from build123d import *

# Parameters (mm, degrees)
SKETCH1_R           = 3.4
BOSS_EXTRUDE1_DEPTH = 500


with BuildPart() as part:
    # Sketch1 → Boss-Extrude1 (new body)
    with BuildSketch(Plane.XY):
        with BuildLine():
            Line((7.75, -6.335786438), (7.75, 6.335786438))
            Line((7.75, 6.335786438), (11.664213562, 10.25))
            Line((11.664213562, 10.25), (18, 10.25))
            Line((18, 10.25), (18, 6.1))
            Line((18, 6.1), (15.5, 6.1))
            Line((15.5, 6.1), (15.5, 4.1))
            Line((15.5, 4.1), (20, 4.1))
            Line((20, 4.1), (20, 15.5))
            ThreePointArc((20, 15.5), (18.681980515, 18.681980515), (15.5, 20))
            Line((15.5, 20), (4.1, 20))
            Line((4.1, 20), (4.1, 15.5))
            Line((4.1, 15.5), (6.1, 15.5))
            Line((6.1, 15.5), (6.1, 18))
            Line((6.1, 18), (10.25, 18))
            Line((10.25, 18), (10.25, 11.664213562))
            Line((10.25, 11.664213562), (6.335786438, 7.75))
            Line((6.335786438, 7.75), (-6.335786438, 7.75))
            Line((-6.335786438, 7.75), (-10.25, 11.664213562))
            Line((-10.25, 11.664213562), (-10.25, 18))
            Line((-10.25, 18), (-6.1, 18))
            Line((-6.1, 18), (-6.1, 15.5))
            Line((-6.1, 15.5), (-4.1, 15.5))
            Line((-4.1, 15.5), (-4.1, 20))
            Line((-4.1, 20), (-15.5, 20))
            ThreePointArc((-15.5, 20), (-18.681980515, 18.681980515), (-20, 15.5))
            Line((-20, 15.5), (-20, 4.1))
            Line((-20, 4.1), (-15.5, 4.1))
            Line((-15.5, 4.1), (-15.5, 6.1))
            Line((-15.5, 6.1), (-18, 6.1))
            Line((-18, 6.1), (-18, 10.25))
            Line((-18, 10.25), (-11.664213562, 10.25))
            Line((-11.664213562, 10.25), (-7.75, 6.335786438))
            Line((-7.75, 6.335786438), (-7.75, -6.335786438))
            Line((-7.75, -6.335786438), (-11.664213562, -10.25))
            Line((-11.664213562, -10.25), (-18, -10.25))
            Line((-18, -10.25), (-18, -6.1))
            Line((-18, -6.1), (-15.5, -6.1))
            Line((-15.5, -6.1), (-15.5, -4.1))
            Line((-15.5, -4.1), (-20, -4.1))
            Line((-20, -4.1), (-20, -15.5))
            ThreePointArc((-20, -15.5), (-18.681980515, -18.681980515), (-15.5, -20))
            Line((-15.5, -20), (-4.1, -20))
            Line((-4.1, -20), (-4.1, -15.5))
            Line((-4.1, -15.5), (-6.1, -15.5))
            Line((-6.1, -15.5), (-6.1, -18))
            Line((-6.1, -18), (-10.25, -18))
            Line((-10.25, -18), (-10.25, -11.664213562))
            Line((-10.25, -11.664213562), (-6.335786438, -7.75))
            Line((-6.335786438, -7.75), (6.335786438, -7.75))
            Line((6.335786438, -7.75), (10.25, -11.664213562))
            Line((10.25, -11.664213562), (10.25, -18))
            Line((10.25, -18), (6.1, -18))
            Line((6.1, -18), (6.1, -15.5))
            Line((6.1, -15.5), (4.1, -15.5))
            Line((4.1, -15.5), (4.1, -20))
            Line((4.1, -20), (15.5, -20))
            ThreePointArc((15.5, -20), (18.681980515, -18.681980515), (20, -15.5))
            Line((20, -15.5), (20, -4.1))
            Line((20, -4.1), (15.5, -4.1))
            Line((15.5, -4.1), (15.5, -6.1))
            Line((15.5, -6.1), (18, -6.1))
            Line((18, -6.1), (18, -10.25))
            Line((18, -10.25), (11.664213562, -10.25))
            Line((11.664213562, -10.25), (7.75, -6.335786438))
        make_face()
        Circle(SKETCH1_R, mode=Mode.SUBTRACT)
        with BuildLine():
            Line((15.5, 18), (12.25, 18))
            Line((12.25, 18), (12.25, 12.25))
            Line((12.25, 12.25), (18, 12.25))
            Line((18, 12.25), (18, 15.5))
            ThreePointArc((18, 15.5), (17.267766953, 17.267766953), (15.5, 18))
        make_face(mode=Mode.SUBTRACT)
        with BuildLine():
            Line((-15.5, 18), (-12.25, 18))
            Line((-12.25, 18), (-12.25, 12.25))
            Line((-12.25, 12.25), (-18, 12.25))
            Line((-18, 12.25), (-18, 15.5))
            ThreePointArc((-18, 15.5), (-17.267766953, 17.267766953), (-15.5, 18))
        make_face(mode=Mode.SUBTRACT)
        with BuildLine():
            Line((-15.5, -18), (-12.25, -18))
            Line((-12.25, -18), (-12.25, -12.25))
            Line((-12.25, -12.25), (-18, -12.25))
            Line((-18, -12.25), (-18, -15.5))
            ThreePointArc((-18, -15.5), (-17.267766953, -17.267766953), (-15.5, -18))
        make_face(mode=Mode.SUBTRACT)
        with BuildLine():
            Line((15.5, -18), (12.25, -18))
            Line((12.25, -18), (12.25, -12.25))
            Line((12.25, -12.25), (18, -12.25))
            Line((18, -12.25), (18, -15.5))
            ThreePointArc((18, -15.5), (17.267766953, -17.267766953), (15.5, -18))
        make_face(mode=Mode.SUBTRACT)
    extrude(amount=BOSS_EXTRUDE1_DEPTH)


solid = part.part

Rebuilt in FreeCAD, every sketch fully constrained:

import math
import FreeCAD as App
import Part
import Sketcher

V = App.Vector
Q = App.Units.Quantity

doc = App.newDocument("Part")
body = doc.addObject("PartDesign::Body", "Body")

# Sketch on XY plane
sketch1 = body.newObject("Sketcher::SketchObject", "Sketch")
sketch1.AttachmentSupport = (doc.getObject("XY_Plane"), [""])
sketch1.MapMode = "FlatFace"
sketch1.addGeometry([
    Part.LineSegment(V(7.8, -6.3, 0), V(7.8, 6.3, 0)),  # 0
    Part.LineSegment(V(7.8, 6.3, 0), V(11.7, 10.2, 0)),  # 1
    Part.LineSegment(V(11.7, 10.2, 0), V(18, 10.2, 0)),  # 2
    Part.LineSegment(V(18, 10.2, 0), V(18, 6.1, 0)),  # 3
    Part.LineSegment(V(18, 6.1, 0), V(15.5, 6.1, 0)),  # 4
    Part.LineSegment(V(15.5, 6.1, 0), V(15.5, 4.1, 0)),  # 5
    Part.LineSegment(V(15.5, 4.1, 0), V(20, 4.1, 0)),  # 6
    Part.LineSegment(V(20, 4.1, 0), V(20, 15.5, 0)),  # 7
    Part.ArcOfCircle(Part.Circle(V(15.5, 15.5, 0), V(0, 0, 1), 4.5), math.radians(0), math.radians(90)),  # 8
    Part.LineSegment(V(15.5, 20, 0), V(4.1, 20, 0)),  # 9
    Part.LineSegment(V(4.1, 20, 0), V(4.1, 15.5, 0)),  # 10
    Part.LineSegment(V(4.1, 15.5, 0), V(6.1, 15.5, 0)),  # 11
    Part.LineSegment(V(6.1, 15.5, 0), V(6.1, 18, 0)),  # 12
    Part.LineSegment(V(6.1, 18, 0), V(10.2, 18, 0)),  # 13
    Part.LineSegment(V(10.2, 18, 0), V(10.2, 11.7, 0)),  # 14
    Part.LineSegment(V(10.2, 11.7, 0), V(6.3, 7.8, 0)),  # 15
    Part.LineSegment(V(6.3, 7.8, 0), V(-6.3, 7.8, 0)),  # 16
    Part.LineSegment(V(-6.3, 7.8, 0), V(-10.2, 11.7, 0)),  # 17
    Part.LineSegment(V(-10.2, 11.7, 0), V(-10.2, 18, 0)),  # 18
    Part.LineSegment(V(-10.2, 18, 0), V(-6.1, 18, 0)),  # 19
    Part.LineSegment(V(-6.1, 18, 0), V(-6.1, 15.5, 0)),  # 20
    Part.LineSegment(V(-6.1, 15.5, 0), V(-4.1, 15.5, 0)),  # 21
    Part.LineSegment(V(-4.1, 15.5, 0), V(-4.1, 20, 0)),  # 22
    Part.LineSegment(V(-4.1, 20, 0), V(-15.5, 20, 0)),  # 23
    Part.ArcOfCircle(Part.Circle(V(-15.5, 15.5, 0), V(0, 0, 1), 4.5), math.radians(90), math.radians(180)),  # 24
    Part.LineSegment(V(-20, 15.5, 0), V(-20, 4.1, 0)),  # 25
    Part.LineSegment(V(-20, 4.1, 0), V(-15.5, 4.1, 0)),  # 26
    Part.LineSegment(V(-15.5, 4.1, 0), V(-15.5, 6.1, 0)),  # 27
    Part.LineSegment(V(-15.5, 6.1, 0), V(-18, 6.1, 0)),  # 28
    Part.LineSegment(V(-18, 6.1, 0), V(-18, 10.2, 0)),  # 29
    Part.LineSegment(V(-18, 10.2, 0), V(-11.7, 10.2, 0)),  # 30
    Part.LineSegment(V(-11.7, 10.2, 0), V(-7.8, 6.3, 0)),  # 31
    Part.LineSegment(V(-7.8, 6.3, 0), V(-7.8, -6.3, 0)),  # 32
    Part.LineSegment(V(-7.8, -6.3, 0), V(-11.7, -10.2, 0)),  # 33
    Part.LineSegment(V(-11.7, -10.2, 0), V(-18, -10.2, 0)),  # 34
    Part.LineSegment(V(-18, -10.2, 0), V(-18, -6.1, 0)),  # 35
    Part.LineSegment(V(-18, -6.1, 0), V(-15.5, -6.1, 0)),  # 36
    Part.LineSegment(V(-15.5, -6.1, 0), V(-15.5, -4.1, 0)),  # 37
    Part.LineSegment(V(-15.5, -4.1, 0), V(-20, -4.1, 0)),  # 38
    Part.LineSegment(V(-20, -4.1, 0), V(-20, -15.5, 0)),  # 39
    Part.ArcOfCircle(Part.Circle(V(-15.5, -15.5, 0), V(0, 0, 1), 4.5), math.radians(-180), math.radians(-90)),  # 40
    Part.LineSegment(V(-15.5, -20, 0), V(-4.1, -20, 0)),  # 41
    Part.LineSegment(V(-4.1, -20, 0), V(-4.1, -15.5, 0)),  # 42
    Part.LineSegment(V(-4.1, -15.5, 0), V(-6.1, -15.5, 0)),  # 43
    Part.LineSegment(V(-6.1, -15.5, 0), V(-6.1, -18, 0)),  # 44
    Part.LineSegment(V(-6.1, -18, 0), V(-10.2, -18, 0)),  # 45
    Part.LineSegment(V(-10.2, -18, 0), V(-10.2, -11.7, 0)),  # 46
    Part.LineSegment(V(-10.2, -11.7, 0), V(-6.3, -7.8, 0)),  # 47
    Part.LineSegment(V(-6.3, -7.8, 0), V(6.3, -7.8, 0)),  # 48
    Part.LineSegment(V(6.3, -7.8, 0), V(10.2, -11.7, 0)),  # 49
    Part.LineSegment(V(10.2, -11.7, 0), V(10.2, -18, 0)),  # 50
    Part.LineSegment(V(10.2, -18, 0), V(6.1, -18, 0)),  # 51
    Part.LineSegment(V(6.1, -18, 0), V(6.1, -15.5, 0)),  # 52
    Part.LineSegment(V(6.1, -15.5, 0), V(4.1, -15.5, 0)),  # 53
    Part.LineSegment(V(4.1, -15.5, 0), V(4.1, -20, 0)),  # 54
    Part.LineSegment(V(4.1, -20, 0), V(15.5, -20, 0)),  # 55
    Part.ArcOfCircle(Part.Circle(V(15.5, -15.5, 0), V(0, 0, 1), 4.5), math.radians(-90), math.radians(0)),  # 56
    Part.LineSegment(V(20, -15.5, 0), V(20, -4.1, 0)),  # 57
    Part.LineSegment(V(20, -4.1, 0), V(15.5, -4.1, 0)),  # 58
    Part.LineSegment(V(15.5, -4.1, 0), V(15.5, -6.1, 0)),  # 59
    Part.LineSegment(V(15.5, -6.1, 0), V(18, -6.1, 0)),  # 60
    Part.LineSegment(V(18, -6.1, 0), V(18, -10.2, 0)),  # 61
    Part.LineSegment(V(18, -10.2, 0), V(11.7, -10.2, 0)),  # 62
    Part.LineSegment(V(11.7, -10.2, 0), V(7.8, -6.3, 0)),  # 63
    Part.LineSegment(V(-12.2, -18, 0), V(-15.5, -18, 0)),  # 64
    Part.ArcOfCircle(Part.Circle(V(-15.5, -15.5, 0), V(0, 0, 1), 2.5), math.radians(180), math.radians(270)),  # 65
    Part.LineSegment(V(-18, -15.5, 0), V(-18, -12.2, 0)),  # 66
    Part.LineSegment(V(-18, -12.2, 0), V(-12.2, -12.2, 0)),  # 67
    Part.LineSegment(V(-12.2, -12.2, 0), V(-12.2, -18, 0)),  # 68
    Part.ArcOfCircle(Part.Circle(V(15.5, -15.5, 0), V(0, 0, 1), 2.5), math.radians(-90), math.radians(0)),  # 69
    Part.LineSegment(V(15.5, -18, 0), V(12.2, -18, 0)),  # 70
    Part.LineSegment(V(12.2, -18, 0), V(12.2, -12.2, 0)),  # 71
    Part.LineSegment(V(12.2, -12.2, 0), V(18, -12.2, 0)),  # 72
    Part.LineSegment(V(18, -12.2, 0), V(18, -15.5, 0)),  # 73
    Part.ArcOfCircle(Part.Circle(V(-15.5, 15.5, 0), V(0, 0, 1), 2.5), math.radians(90), math.radians(180)),  # 74
    Part.LineSegment(V(-15.5, 18, 0), V(-12.2, 18, 0)),  # 75
    Part.LineSegment(V(-12.2, 18, 0), V(-12.2, 12.2, 0)),  # 76
    Part.LineSegment(V(-12.2, 12.2, 0), V(-18, 12.2, 0)),  # 77
    Part.LineSegment(V(-18, 12.2, 0), V(-18, 15.5, 0)),  # 78
    Part.Circle(V(0, 0, 0), V(0, 0, 1), 3.4),  # 79
    Part.LineSegment(V(12.2, 18, 0), V(15.5, 18, 0)),  # 80
    Part.ArcOfCircle(Part.Circle(V(15.5, 15.5, 0), V(0, 0, 1), 2.5), math.radians(0), math.radians(90)),  # 81
    Part.LineSegment(V(18, 15.5, 0), V(18, 12.2, 0)),  # 82
    Part.LineSegment(V(18, 12.2, 0), V(12.2, 12.2, 0)),  # 83
    Part.LineSegment(V(12.2, 12.2, 0), V(12.2, 18, 0)),  # 84
], False)
sketch1.addConstraint([
    Sketcher.Constraint("Coincident", 0, 2, 1, 1),
    Sketcher.Constraint("Coincident", 1, 2, 2, 1),
    Sketcher.Constraint("Coincident", 2, 2, 3, 1),
    Sketcher.Constraint("Coincident", 3, 2, 4, 1),
    Sketcher.Constraint("Coincident", 4, 2, 5, 1),
    Sketcher.Constraint("Coincident", 5, 2, 6, 1),
    Sketcher.Constraint("Coincident", 6, 2, 7, 1),
    Sketcher.Constraint("Tangent", 7, 2, 8, 1),
    Sketcher.Constraint("Tangent", 8, 2, 9, 1),
    Sketcher.Constraint("Coincident", 9, 2, 10, 1),
    Sketcher.Constraint("Coincident", 10, 2, 11, 1),
    Sketcher.Constraint("Coincident", 11, 2, 12, 1),
    Sketcher.Constraint("Coincident", 12, 2, 13, 1),
    Sketcher.Constraint("Coincident", 13, 2, 14, 1),
    Sketcher.Constraint("Coincident", 14, 2, 15, 1),
    Sketcher.Constraint("Coincident", 15, 2, 16, 1),
    Sketcher.Constraint("Coincident", 16, 2, 17, 1),
    Sketcher.Constraint("Coincident", 17, 2, 18, 1),
    Sketcher.Constraint("Coincident", 18, 2, 19, 1),
    Sketcher.Constraint("Coincident", 19, 2, 20, 1),
    Sketcher.Constraint("Coincident", 20, 2, 21, 1),
    Sketcher.Constraint("Coincident", 21, 2, 22, 1),
    Sketcher.Constraint("Coincident", 22, 2, 23, 1),
    Sketcher.Constraint("Tangent", 23, 2, 24, 1),
    Sketcher.Constraint("Tangent", 24, 2, 25, 1),
    Sketcher.Constraint("Coincident", 25, 2, 26, 1),
    Sketcher.Constraint("Coincident", 26, 2, 27, 1),
    Sketcher.Constraint("Coincident", 27, 2, 28, 1),
    Sketcher.Constraint("Coincident", 28, 2, 29, 1),
    Sketcher.Constraint("Coincident", 29, 2, 30, 1),
    Sketcher.Constraint("Coincident", 30, 2, 31, 1),
    Sketcher.Constraint("Coincident", 31, 2, 32, 1),
    Sketcher.Constraint("Coincident", 32, 2, 33, 1),
    Sketcher.Constraint("Coincident", 33, 2, 34, 1),
    Sketcher.Constraint("Coincident", 34, 2, 35, 1),
    Sketcher.Constraint("Coincident", 35, 2, 36, 1),
    Sketcher.Constraint("Coincident", 36, 2, 37, 1),
    Sketcher.Constraint("Coincident", 37, 2, 38, 1),
    Sketcher.Constraint("Coincident", 38, 2, 39, 1),
    Sketcher.Constraint("Tangent", 39, 2, 40, 1),
    Sketcher.Constraint("Tangent", 40, 2, 41, 1),
    Sketcher.Constraint("Coincident", 41, 2, 42, 1),
    Sketcher.Constraint("Coincident", 42, 2, 43, 1),
    Sketcher.Constraint("Coincident", 43, 2, 44, 1),
    Sketcher.Constraint("Coincident", 44, 2, 45, 1),
    Sketcher.Constraint("Coincident", 45, 2, 46, 1),
    Sketcher.Constraint("Coincident", 46, 2, 47, 1),
    Sketcher.Constraint("Coincident", 47, 2, 48, 1),
    Sketcher.Constraint("Coincident", 48, 2, 49, 1),
    Sketcher.Constraint("Coincident", 49, 2, 50, 1),
    Sketcher.Constraint("Coincident", 50, 2, 51, 1),
    Sketcher.Constraint("Coincident", 51, 2, 52, 1),
    Sketcher.Constraint("Coincident", 52, 2, 53, 1),
    Sketcher.Constraint("Coincident", 53, 2, 54, 1),
    Sketcher.Constraint("Coincident", 54, 2, 55, 1),
    Sketcher.Constraint("Tangent", 55, 2, 56, 1),
    Sketcher.Constraint("Tangent", 56, 2, 57, 1),
    Sketcher.Constraint("Coincident", 57, 2, 58, 1),
    Sketcher.Constraint("Coincident", 58, 2, 59, 1),
    Sketcher.Constraint("Coincident", 59, 2, 60, 1),
    Sketcher.Constraint("Coincident", 60, 2, 61, 1),
    Sketcher.Constraint("Coincident", 61, 2, 62, 1),
    Sketcher.Constraint("Coincident", 62, 2, 63, 1),
    Sketcher.Constraint("Coincident", 63, 2, 0, 1),
    Sketcher.Constraint("Tangent", 64, 2, 65, 2),
    Sketcher.Constraint("Tangent", 65, 1, 66, 1),
    Sketcher.Constraint("Coincident", 66, 2, 67, 1),
    Sketcher.Constraint("Coincident", 67, 2, 68, 1),
    Sketcher.Constraint("Coincident", 68, 2, 64, 1),
    Sketcher.Constraint("Tangent", 69, 1, 70, 1),
    Sketcher.Constraint("Coincident", 70, 2, 71, 1),
    Sketcher.Constraint("Coincident", 71, 2, 72, 1),
    Sketcher.Constraint("Coincident", 72, 2, 73, 1),
    Sketcher.Constraint("Tangent", 73, 2, 69, 2),
    Sketcher.Constraint("Tangent", 74, 1, 75, 1),
    Sketcher.Constraint("Coincident", 75, 2, 76, 1),
    Sketcher.Constraint("Coincident", 76, 2, 77, 1),
    Sketcher.Constraint("Coincident", 77, 2, 78, 1),
    Sketcher.Constraint("Tangent", 78, 2, 74, 2),
    Sketcher.Constraint("Tangent", 80, 2, 81, 2),
    Sketcher.Constraint("Tangent", 81, 1, 82, 1),
    Sketcher.Constraint("Coincident", 82, 2, 83, 1),
    Sketcher.Constraint("Coincident", 83, 2, 84, 1),
    Sketcher.Constraint("Coincident", 84, 2, 80, 1),
    Sketcher.Constraint("Vertical", 0),
    Sketcher.Constraint("Horizontal", 2),
    Sketcher.Constraint("Vertical", 3),
    Sketcher.Constraint("Horizontal", 4),
    Sketcher.Constraint("Vertical", 5),
    Sketcher.Constraint("Horizontal", 6),
    Sketcher.Constraint("Vertical", 7),
    Sketcher.Constraint("Horizontal", 9),
    Sketcher.Constraint("Vertical", 10),
    Sketcher.Constraint("Horizontal", 11),
    Sketcher.Constraint("Vertical", 12),
    Sketcher.Constraint("Horizontal", 13),
    Sketcher.Constraint("Vertical", 14),
    Sketcher.Constraint("Horizontal", 16),
    Sketcher.Constraint("Vertical", 18),
    Sketcher.Constraint("Horizontal", 19),
    Sketcher.Constraint("Vertical", 20),
    Sketcher.Constraint("Horizontal", 21),
    Sketcher.Constraint("Vertical", 22),
    Sketcher.Constraint("Horizontal", 23),
    Sketcher.Constraint("Vertical", 25),
    Sketcher.Constraint("Horizontal", 26),
    Sketcher.Constraint("Vertical", 27),
    Sketcher.Constraint("Horizontal", 28),
    Sketcher.Constraint("Vertical", 29),
    Sketcher.Constraint("Horizontal", 30),
    Sketcher.Constraint("Vertical", 32),
    Sketcher.Constraint("Horizontal", 34),
    Sketcher.Constraint("Vertical", 35),
    Sketcher.Constraint("Horizontal", 36),
    Sketcher.Constraint("Vertical", 37),
    Sketcher.Constraint("Horizontal", 38),
    Sketcher.Constraint("Vertical", 39),
    Sketcher.Constraint("Horizontal", 41),
    Sketcher.Constraint("Vertical", 42),
    Sketcher.Constraint("Horizontal", 43),
    Sketcher.Constraint("Vertical", 44),
    Sketcher.Constraint("Horizontal", 45),
    Sketcher.Constraint("Vertical", 46),
    Sketcher.Constraint("Horizontal", 48),
    Sketcher.Constraint("Vertical", 50),
    Sketcher.Constraint("Horizontal", 51),
    Sketcher.Constraint("Vertical", 52),
    Sketcher.Constraint("Horizontal", 53),
    Sketcher.Constraint("Vertical", 54),
    Sketcher.Constraint("Horizontal", 55),
    Sketcher.Constraint("Vertical", 57),
    Sketcher.Constraint("Horizontal", 58),
    Sketcher.Constraint("Vertical", 59),
    Sketcher.Constraint("Horizontal", 60),
    Sketcher.Constraint("Vertical", 61),
    Sketcher.Constraint("Horizontal", 62),
    Sketcher.Constraint("Horizontal", 64),
    Sketcher.Constraint("Vertical", 66),
    Sketcher.Constraint("Horizontal", 67),
    Sketcher.Constraint("Vertical", 68),
    Sketcher.Constraint("Horizontal", 70),
    Sketcher.Constraint("Vertical", 71),
    Sketcher.Constraint("Horizontal", 72),
    Sketcher.Constraint("Vertical", 73),
    Sketcher.Constraint("Horizontal", 75),
    Sketcher.Constraint("Vertical", 76),
    Sketcher.Constraint("Horizontal", 77),
    Sketcher.Constraint("Vertical", 78),
    Sketcher.Constraint("Horizontal", 80),
    Sketcher.Constraint("Vertical", 82),
    Sketcher.Constraint("Horizontal", 83),
    Sketcher.Constraint("Vertical", 84),
    Sketcher.Constraint("Coincident", 79, 3, -1, 1),
    Sketcher.Constraint("Coincident", 65, 3, 40, 3),
    Sketcher.Constraint("Coincident", 69, 3, 56, 3),
    Sketcher.Constraint("Coincident", 74, 3, 24, 3),
    Sketcher.Constraint("Coincident", 81, 3, 8, 3),
    Sketcher.Constraint("Equal", 8, 24),
    Sketcher.Constraint("Equal", 24, 40),
    Sketcher.Constraint("Equal", 40, 56),
    Sketcher.Constraint("Equal", 65, 69),
    Sketcher.Constraint("Equal", 69, 74),
    Sketcher.Constraint("Equal", 74, 81),
    Sketcher.Constraint("Symmetric", 8, 3, 40, 3, -1, 1),
    Sketcher.Constraint("Symmetric", 24, 3, 56, 3, -1, 1),
    Sketcher.Constraint("Symmetric", 0, 2, 32, 2, -1, 1),
    Sketcher.Constraint("Symmetric", 1, 2, 33, 2, -1, 1),
    Sketcher.Constraint("Symmetric", 3, 2, 35, 2, -1, 1),
    Sketcher.Constraint("Symmetric", 5, 2, 37, 2, -1, 1),
    Sketcher.Constraint("Symmetric", 10, 2, 42, 2, -1, 1),
    Sketcher.Constraint("Symmetric", 12, 2, 44, 2, -1, 1),
    Sketcher.Constraint("Symmetric", 14, 2, 46, 2, -1, 1),
    Sketcher.Constraint("Symmetric", 15, 2, 47, 2, -1, 1),
    Sketcher.Constraint("Symmetric", 17, 2, 49, 2, -1, 1),
    Sketcher.Constraint("Symmetric", 19, 2, 51, 2, -1, 1),
    Sketcher.Constraint("Symmetric", 21, 2, 53, 2, -1, 1),
    Sketcher.Constraint("Symmetric", 26, 2, 58, 2, -1, 1),
    Sketcher.Constraint("Symmetric", 28, 2, 60, 2, -1, 1),
    Sketcher.Constraint("Symmetric", 30, 2, 62, 2, -1, 1),
    Sketcher.Constraint("Symmetric", 71, 2, 76, 2, -1, 1),
    Sketcher.Constraint("Symmetric", 67, 2, 83, 2, -1, 1),
    Sketcher.Constraint("Symmetric", 8, 3, 24, 3, -2),
    Sketcher.Constraint("Symmetric", 14, 2, 17, 2, -2),
    Sketcher.Constraint("Symmetric", 12, 2, 19, 2, -2),
    Sketcher.Constraint("Symmetric", 10, 2, 21, 2, -2),
    Sketcher.Constraint("Symmetric", 5, 2, 26, 2, -2),
    Sketcher.Constraint("Symmetric", 3, 2, 28, 2, -2),
    Sketcher.Constraint("Symmetric", 1, 2, 30, 2, -2),
    Sketcher.Constraint("Symmetric", 67, 2, 71, 2, -2),
    Sketcher.Constraint("Parallel", 1, 15),
    Sketcher.Constraint("Perpendicular", 15, 17),
    Sketcher.Constraint("Parallel", 17, 31),
    Sketcher.Constraint("Perpendicular", 47, 49),
    Sketcher.Constraint("Parallel", 49, 63),
    Sketcher.Constraint("Horizontal", 7, 2, 10, 2),
    Sketcher.Constraint("Horizontal", 0, 2, 31, 2),
    Sketcher.Constraint("Horizontal", 51, 2, 64, 2),
    Sketcher.Constraint("Vertical", 81, 3, 4, 2),
    Sketcher.Constraint("Vertical", 35, 2, 65, 1),
    Sketcher.Constraint("Equal", 48, 0),
    Sketcher.Constraint("Equal", 51, 3),
    Sketcher.Constraint("Equal", 53, 5),
    Sketcher.Constraint("Equal", 55, 7),
    Sketcher.Constraint("Equal", 62, 14),
    Sketcher.Constraint("Equal", 80, 66),
    Sketcher.Constraint("Equal", 1, 15),
    Sketcher.Constraint("Diameter", 79, Q("6.8 mm")),
    Sketcher.Constraint("Radius", 8, Q("4.5 mm")),
    Sketcher.Constraint("Radius", 65, Q("2.5 mm")),
    Sketcher.Constraint("DistanceX", 11, 1, 11, 2, Q("2 mm")),
    Sketcher.Constraint("DistanceX", 9, 2, 9, 1, Q("11.4 mm")),
    Sketcher.Constraint("DistanceX", -1, 1, 2, 2, Q("18 mm")),
    Sketcher.Constraint("DistanceX", 13, 1, 13, 2, Q("4.15 mm")),
    Sketcher.Constraint("DistanceX", 64, 2, 64, 1, Q("3.25 mm")),
    Sketcher.Constraint("DistanceX", -1, 1, 0, 2, Q("7.75 mm")),
    Sketcher.Constraint("DistanceX", 2, 1, 2, 2, Q("6.335786 mm")),
])
pad1 = body.newObject("PartDesign::Pad", "Pad")
pad1.Profile = sketch1
pad1.Length = 500

doc.recompute()
